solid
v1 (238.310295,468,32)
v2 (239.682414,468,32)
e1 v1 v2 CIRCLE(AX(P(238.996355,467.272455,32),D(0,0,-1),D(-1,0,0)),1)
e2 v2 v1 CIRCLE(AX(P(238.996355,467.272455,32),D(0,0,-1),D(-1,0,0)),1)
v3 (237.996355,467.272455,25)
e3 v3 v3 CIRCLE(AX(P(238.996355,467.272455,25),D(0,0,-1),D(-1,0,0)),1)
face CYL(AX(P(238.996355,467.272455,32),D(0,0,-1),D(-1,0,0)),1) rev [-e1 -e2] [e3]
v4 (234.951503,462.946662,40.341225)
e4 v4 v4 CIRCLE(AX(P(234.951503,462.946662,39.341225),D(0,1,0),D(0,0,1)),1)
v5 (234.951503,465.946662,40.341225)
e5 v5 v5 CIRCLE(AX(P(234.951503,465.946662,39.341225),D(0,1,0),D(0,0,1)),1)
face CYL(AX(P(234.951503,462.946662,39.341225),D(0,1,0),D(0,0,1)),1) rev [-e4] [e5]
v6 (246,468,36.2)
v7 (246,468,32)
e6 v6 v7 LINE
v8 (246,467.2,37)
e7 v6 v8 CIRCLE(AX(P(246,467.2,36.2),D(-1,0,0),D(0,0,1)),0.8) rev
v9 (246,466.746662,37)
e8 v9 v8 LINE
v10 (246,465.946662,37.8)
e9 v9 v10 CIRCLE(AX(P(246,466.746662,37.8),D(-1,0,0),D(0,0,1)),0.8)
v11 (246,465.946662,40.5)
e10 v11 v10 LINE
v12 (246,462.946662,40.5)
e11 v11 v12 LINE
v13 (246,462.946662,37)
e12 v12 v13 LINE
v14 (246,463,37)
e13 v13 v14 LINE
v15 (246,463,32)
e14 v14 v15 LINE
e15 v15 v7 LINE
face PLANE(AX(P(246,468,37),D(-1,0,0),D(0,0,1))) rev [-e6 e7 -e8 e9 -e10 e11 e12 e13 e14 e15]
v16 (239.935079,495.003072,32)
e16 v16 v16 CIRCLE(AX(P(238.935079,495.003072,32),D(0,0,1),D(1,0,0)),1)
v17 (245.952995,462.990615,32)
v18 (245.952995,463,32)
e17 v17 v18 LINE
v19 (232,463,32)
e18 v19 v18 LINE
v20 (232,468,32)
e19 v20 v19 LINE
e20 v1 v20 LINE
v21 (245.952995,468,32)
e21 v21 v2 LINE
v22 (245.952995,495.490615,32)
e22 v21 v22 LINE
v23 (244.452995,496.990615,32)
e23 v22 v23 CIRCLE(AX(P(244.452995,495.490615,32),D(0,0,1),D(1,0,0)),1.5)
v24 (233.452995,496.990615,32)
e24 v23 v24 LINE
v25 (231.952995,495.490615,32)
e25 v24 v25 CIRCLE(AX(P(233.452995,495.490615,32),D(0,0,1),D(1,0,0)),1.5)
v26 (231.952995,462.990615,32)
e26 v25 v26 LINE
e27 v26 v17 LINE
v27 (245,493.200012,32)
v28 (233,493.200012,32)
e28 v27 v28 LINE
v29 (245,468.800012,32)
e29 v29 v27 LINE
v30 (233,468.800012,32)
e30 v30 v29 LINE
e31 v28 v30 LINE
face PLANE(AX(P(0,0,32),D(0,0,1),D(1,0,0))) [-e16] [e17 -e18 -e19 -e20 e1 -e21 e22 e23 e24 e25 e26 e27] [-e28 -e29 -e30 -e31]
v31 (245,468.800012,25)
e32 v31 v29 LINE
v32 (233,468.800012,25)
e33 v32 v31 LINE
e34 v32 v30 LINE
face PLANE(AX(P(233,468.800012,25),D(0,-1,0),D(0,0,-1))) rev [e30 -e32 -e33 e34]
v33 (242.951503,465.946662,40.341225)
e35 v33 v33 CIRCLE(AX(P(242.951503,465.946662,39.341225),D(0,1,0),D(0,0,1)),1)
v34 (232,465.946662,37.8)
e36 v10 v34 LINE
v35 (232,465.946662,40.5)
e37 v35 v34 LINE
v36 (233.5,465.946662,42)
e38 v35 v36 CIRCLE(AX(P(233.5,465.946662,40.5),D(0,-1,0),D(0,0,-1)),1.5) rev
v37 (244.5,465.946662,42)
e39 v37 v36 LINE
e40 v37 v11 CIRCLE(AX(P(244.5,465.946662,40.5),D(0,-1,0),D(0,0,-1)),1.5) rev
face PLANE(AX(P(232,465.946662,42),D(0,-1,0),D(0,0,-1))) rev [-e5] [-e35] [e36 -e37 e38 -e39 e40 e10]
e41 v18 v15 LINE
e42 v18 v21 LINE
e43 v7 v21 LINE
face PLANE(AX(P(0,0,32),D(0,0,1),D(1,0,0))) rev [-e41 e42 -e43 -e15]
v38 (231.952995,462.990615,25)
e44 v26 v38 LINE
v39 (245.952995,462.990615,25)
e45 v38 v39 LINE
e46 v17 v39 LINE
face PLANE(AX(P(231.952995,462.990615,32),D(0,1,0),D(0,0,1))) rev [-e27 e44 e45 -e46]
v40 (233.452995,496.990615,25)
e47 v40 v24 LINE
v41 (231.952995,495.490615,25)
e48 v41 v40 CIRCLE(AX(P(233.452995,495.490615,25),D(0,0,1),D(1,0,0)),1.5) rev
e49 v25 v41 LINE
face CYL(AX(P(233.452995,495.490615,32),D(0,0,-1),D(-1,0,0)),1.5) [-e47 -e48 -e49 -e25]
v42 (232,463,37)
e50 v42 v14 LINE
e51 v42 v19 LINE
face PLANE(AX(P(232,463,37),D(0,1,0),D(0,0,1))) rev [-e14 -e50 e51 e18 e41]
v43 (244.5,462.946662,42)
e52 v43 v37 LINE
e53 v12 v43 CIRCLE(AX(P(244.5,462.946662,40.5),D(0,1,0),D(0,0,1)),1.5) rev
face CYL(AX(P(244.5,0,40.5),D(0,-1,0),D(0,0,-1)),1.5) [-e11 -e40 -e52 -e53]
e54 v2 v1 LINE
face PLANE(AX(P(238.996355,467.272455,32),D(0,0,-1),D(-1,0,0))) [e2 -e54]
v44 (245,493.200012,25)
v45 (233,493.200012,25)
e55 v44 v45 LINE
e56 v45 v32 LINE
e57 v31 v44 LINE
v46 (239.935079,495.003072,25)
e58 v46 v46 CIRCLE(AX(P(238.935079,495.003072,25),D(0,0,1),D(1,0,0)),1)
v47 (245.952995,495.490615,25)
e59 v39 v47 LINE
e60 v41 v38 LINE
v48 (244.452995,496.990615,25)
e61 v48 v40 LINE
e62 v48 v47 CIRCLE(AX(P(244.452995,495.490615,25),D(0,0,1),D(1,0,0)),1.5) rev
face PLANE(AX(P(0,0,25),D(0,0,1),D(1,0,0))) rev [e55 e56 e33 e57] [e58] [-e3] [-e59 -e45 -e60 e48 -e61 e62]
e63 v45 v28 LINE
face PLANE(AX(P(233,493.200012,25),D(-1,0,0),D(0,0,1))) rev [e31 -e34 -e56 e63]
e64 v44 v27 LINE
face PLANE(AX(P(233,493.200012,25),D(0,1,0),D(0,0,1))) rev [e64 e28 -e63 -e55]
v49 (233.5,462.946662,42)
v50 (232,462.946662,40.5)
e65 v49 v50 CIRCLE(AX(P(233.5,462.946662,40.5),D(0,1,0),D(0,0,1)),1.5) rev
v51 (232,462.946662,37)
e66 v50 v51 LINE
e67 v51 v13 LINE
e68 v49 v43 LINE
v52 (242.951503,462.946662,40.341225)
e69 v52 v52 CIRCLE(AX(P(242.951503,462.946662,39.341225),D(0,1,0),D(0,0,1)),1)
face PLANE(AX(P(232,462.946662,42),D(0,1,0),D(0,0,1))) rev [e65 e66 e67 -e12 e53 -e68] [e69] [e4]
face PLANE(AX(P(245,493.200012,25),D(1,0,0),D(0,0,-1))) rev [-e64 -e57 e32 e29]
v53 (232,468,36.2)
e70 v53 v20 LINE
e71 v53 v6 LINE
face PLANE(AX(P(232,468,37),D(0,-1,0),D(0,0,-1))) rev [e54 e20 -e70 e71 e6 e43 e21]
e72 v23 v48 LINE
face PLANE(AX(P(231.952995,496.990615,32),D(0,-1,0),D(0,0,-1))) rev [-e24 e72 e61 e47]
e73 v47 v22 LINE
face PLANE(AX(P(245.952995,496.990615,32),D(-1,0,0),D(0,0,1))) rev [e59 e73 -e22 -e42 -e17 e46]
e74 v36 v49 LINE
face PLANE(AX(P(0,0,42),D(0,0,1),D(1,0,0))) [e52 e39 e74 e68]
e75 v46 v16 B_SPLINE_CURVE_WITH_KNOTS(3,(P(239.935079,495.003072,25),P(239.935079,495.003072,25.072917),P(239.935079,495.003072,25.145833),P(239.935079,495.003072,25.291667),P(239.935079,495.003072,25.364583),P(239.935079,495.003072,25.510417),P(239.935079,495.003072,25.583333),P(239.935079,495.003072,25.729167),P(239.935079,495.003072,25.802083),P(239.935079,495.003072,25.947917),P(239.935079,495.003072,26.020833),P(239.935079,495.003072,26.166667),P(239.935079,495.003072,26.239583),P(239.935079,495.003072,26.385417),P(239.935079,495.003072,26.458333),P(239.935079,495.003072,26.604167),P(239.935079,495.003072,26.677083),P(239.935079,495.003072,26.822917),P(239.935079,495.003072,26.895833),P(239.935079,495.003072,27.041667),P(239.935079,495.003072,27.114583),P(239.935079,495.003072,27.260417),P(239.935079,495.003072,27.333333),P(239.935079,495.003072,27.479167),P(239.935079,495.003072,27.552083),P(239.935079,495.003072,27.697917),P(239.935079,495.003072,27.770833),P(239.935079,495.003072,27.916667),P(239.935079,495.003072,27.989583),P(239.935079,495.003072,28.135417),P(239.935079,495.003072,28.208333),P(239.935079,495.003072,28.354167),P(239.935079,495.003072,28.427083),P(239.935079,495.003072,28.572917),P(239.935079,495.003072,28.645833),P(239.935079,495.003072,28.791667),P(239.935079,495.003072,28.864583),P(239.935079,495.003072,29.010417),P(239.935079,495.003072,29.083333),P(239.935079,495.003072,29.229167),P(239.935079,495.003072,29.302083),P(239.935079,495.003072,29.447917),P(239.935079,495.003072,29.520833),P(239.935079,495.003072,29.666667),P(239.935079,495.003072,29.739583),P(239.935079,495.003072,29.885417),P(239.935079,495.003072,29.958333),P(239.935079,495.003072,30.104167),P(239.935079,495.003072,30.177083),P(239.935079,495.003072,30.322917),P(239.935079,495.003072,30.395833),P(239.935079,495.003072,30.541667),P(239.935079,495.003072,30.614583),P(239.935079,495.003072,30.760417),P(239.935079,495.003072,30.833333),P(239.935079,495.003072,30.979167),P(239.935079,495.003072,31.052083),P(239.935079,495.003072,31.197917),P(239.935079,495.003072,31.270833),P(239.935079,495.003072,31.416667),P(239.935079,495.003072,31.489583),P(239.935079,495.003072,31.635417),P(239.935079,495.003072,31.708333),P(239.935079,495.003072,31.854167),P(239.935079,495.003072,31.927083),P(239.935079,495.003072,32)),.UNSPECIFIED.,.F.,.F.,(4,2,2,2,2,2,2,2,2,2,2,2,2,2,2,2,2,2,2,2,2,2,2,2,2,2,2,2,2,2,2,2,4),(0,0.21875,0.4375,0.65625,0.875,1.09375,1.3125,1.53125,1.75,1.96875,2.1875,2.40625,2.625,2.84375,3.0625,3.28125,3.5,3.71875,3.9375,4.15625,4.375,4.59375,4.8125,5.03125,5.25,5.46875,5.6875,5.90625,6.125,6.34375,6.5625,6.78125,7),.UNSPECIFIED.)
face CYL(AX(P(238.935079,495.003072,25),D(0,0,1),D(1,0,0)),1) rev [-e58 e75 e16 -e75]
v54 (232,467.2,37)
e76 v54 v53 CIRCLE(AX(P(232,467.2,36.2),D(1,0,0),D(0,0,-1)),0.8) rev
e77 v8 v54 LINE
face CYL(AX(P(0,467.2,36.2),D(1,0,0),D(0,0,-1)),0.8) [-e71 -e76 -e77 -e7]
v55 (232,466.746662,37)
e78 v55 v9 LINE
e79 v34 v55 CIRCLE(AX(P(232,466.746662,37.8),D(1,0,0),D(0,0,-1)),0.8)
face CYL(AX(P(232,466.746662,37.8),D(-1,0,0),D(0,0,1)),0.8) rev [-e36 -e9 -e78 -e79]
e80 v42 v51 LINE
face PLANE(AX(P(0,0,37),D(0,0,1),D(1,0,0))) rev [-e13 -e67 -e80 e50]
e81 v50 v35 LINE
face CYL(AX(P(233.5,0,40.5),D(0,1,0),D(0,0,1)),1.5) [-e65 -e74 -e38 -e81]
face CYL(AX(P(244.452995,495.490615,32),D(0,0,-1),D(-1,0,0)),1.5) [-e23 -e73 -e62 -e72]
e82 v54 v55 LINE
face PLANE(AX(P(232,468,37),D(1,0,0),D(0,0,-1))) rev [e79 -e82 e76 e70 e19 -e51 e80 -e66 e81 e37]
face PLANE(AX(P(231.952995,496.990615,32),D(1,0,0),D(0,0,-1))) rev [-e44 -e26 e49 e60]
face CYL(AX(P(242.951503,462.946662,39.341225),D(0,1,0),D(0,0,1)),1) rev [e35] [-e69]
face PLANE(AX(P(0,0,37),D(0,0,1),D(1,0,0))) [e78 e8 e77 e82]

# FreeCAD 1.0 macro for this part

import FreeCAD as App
import Part
import Sketcher
from FreeCAD import Vector
Q = App.Units.Quantity


def edges_at(feature, points):
    """Names of the edges that pass closest to the given points."""
    edges = feature.Shape.Edges
    near = lambda p: min(range(len(edges)), key=lambda i: edges[i].distToShape(Part.Vertex(*p))[0])
    return sorted({f"Edge{near(p) + 1}" for p in points})


def add_polygon(sketch, points):
    """Adds a closed chain of lines whose ends are joined by coincident constraints."""
    first, n = sketch.GeometryCount, len(points)
    for a, b in zip(points, points[1:] + points[:1]):
        sketch.addGeometry(Part.LineSegment(App.Vector(*a, 0), App.Vector(*b, 0)), False)
    for i in range(n):
        sketch.addConstraint(Sketcher.Constraint("Coincident", first + i, 2, first + (i + 1) % n, 1))

doc = App.newDocument("Part")
body = doc.addObject("PartDesign::Body", "Body")

# Sketch on XY plane
sketch1 = body.newObject("Sketcher::SketchObject", "Sketch")
sketch1.AttachmentSupport = (doc.getObject("XY_Plane"), [""])
sketch1.MapMode = "FlatFace"
sketch1.AttachmentOffset = App.Placement(Vector(0, 0, 25), App.Rotation())
add_polygon(sketch1, [(232, 497), (232, 463), (246, 463), (246, 497)])  # lines 0-3
sketch1.addConstraint([
    Sketcher.Constraint("Vertical", 0),
    Sketcher.Constraint("Horizontal", 1),
    Sketcher.Constraint("Vertical", 2),
    Sketcher.Constraint("Horizontal", 3),
    Sketcher.Constraint("DistanceX", 1, 1, 1, 2, Q("14 mm")),
    Sketcher.Constraint("DistanceY", 0, 2, 0, 1, Q("34 mm")),
    Sketcher.Constraint("DistanceX", -1, 1, 0, 2, Q("231.952995 mm")),
    Sketcher.Constraint("DistanceY", -1, 1, 0, 2, Q("462.990615 mm")),
])
pad1 = body.newObject("PartDesign::Pad", "Pad")
pad1.Profile = sketch1
pad1.Length = 7

# Sketch on XY plane
sketch2 = body.newObject("Sketcher::SketchObject", "Sketch001")
sketch2.AttachmentSupport = (doc.getObject("XY_Plane"), [""])
sketch2.MapMode = "FlatFace"
sketch2.AttachmentOffset = App.Placement(Vector(0, 0, 32), App.Rotation())
sketch2.addGeometry(Part.Circle(Vector(238.9, 495, 0), Vector(0, 0, 1), 1), False)  # 0
add_polygon(sketch2, [(233, 493.2), (233, 468.8), (245, 468.8), (245, 493.2)])  # lines 1-4
sketch2.addConstraint([
    Sketcher.Constraint("Vertical", 1),
    Sketcher.Constraint("Horizontal", 2),
    Sketcher.Constraint("Vertical", 3),
    Sketcher.Constraint("Horizontal", 4),
    Sketcher.Constraint("Diameter", 0, Q("2 mm")),
    Sketcher.Constraint("DistanceX", 2, 1, 2, 2, Q("12 mm")),
    Sketcher.Constraint("DistanceY", 1, 2, 1, 1, Q("24.4 mm")),
    Sketcher.Constraint("DistanceX", -1, 1, 1, 2, Q("233 mm")),
    Sketcher.Constraint("DistanceX", -1, 1, 0, 3, Q("238.935079 mm")),
    Sketcher.Constraint("DistanceY", 1, 2, 0, 3, Q("26.20306 mm")),
    Sketcher.Constraint("DistanceY", -1, 1, 0, 3, Q("495.003072 mm")),
])
pocket1 = body.newObject("PartDesign::Pocket", "Pocket")
pocket1.Profile = sketch2
pocket1.Type = "ThroughAll"

# Sketch on XY plane
sketch3 = body.newObject("Sketcher::SketchObject", "Sketch002")
sketch3.AttachmentSupport = (doc.getObject("XY_Plane"), [""])
sketch3.MapMode = "FlatFace"
sketch3.AttachmentOffset = App.Placement(Vector(0, 0, 32), App.Rotation())
add_polygon(sketch3, [(232, 468), (232, 463), (246, 463), (246, 468)])  # lines 0-3
sketch3.addConstraint([
    Sketcher.Constraint("Vertical", 0),
    Sketcher.Constraint("Horizontal", 1),
    Sketcher.Constraint("Vertical", 2),
    Sketcher.Constraint("Horizontal", 3),
    Sketcher.Constraint("DistanceX", 1, 1, 1, 2, Q("14 mm")),
    Sketcher.Constraint("DistanceY", 0, 2, 0, 1, Q("5 mm")),
    Sketcher.Constraint("DistanceX", -1, 1, 0, 2, Q("232 mm")),
    Sketcher.Constraint("DistanceY", -1, 1, 0, 2, Q("463 mm")),
])
pad2 = body.newObject("PartDesign::Pad", "Pad001")
pad2.Profile = sketch3
pad2.Length = 5

# Sketch on XY plane
sketch4 = body.newObject("Sketcher::SketchObject", "Sketch003")
sketch4.AttachmentSupport = (doc.getObject("XY_Plane"), [""])
sketch4.MapMode = "FlatFace"
sketch4.AttachmentOffset = App.Placement(Vector(0, 0, 37), App.Rotation())
add_polygon(sketch4, [(232, 465.9), (232, 462.9), (246, 462.9), (246, 465.9)])  # lines 0-3
sketch4.addConstraint([
    Sketcher.Constraint("Vertical", 0),
    Sketcher.Constraint("Horizontal", 1),
    Sketcher.Constraint("Vertical", 2),
    Sketcher.Constraint("Horizontal", 3),
    Sketcher.Constraint("DistanceX", 1, 1, 1, 2, Q("14 mm")),
    Sketcher.Constraint("DistanceY", 0, 2, 0, 1, Q("3 mm")),
    Sketcher.Constraint("DistanceX", -1, 1, 0, 2, Q("232 mm")),
    Sketcher.Constraint("DistanceY", -1, 1, 0, 2, Q("462.946662 mm")),
])
pad3 = body.newObject("PartDesign::Pad", "Pad002")
pad3.Profile = sketch4
pad3.Length = 5
doc.recompute()

fillet = body.newObject("PartDesign::Fillet", "Fillet")
fillet.Base = (pad3, edges_at(pad3, [
    (232, 464.447, 42),
    (246, 464.447, 42),
    (231.953, 496.991, 28.5),
    (245.953, 496.991, 28.5),
]))
fillet.Radius = 1.5
doc.recompute()

fillet2 = body.newObject("PartDesign::Fillet", "Fillet001")
fillet2.Base = (fillet, edges_at(fillet, [(239, 468, 37), (239, 465.947, 37)]))
fillet2.Radius = 0.8

# Sketch on XY plane
sketch5 = body.newObject("Sketcher::SketchObject", "Sketch004")
sketch5.AttachmentSupport = (doc.getObject("XY_Plane"), [""])
sketch5.MapMode = "FlatFace"
sketch5.AttachmentOffset = App.Placement(Vector(0, 0, 25), App.Rotation())
sketch5.addGeometry(Part.Circle(Vector(239, 467.3, 0), Vector(0, 0, 1), 1), False)
sketch5.addConstraint([
    Sketcher.Constraint("Diameter", 0, Q("2 mm")),
    Sketcher.Constraint("DistanceX", -1, 1, 0, 3, Q("238.996355 mm")),
    Sketcher.Constraint("DistanceY", -1, 1, 0, 3, Q("467.272455 mm")),
])
pocket2 = body.newObject("PartDesign::Pocket", "Pocket001")
pocket2.Profile = sketch5
pocket2.Length = 7
pocket2.Reversed = True

# Sketch on XZ plane
sketch6 = body.newObject("Sketcher::SketchObject", "Sketch005")
sketch6.AttachmentSupport = (doc.getObject("XZ_Plane"), [""])
sketch6.MapMode = "FlatFace"
sketch6.AttachmentOffset = App.Placement(Vector(0, 0, -465.946662), App.Rotation())
sketch6.addGeometry([
    Part.Circle(Vector(235, 39.3, 0), Vector(0, 0, 1), 1),
    Part.Circle(Vector(243, 39.3, 0), Vector(0, 0, 1), 1),
], False)
sketch6.addConstraint([
    Sketcher.Constraint("Equal", 0, 1),
    Sketcher.Constraint("Horizontal", 0, 3, 1, 3),
    Sketcher.Constraint("Diameter", 0, Q("2 mm")),
    Sketcher.Constraint("DistanceX", 0, 3, 1, 3, Q("8 mm")),
    Sketcher.Constraint("DistanceX", -1, 1, 0, 3, Q("234.951503 mm")),
    Sketcher.Constraint("DistanceY", -1, 1, 0, 3, Q("39.341225 mm")),
])
pocket3 = body.newObject("PartDesign::Pocket", "Pocket002")
pocket3.Profile = sketch6
pocket3.Type = "ThroughAll"
pocket3.Reversed = True

doc.recompute()
